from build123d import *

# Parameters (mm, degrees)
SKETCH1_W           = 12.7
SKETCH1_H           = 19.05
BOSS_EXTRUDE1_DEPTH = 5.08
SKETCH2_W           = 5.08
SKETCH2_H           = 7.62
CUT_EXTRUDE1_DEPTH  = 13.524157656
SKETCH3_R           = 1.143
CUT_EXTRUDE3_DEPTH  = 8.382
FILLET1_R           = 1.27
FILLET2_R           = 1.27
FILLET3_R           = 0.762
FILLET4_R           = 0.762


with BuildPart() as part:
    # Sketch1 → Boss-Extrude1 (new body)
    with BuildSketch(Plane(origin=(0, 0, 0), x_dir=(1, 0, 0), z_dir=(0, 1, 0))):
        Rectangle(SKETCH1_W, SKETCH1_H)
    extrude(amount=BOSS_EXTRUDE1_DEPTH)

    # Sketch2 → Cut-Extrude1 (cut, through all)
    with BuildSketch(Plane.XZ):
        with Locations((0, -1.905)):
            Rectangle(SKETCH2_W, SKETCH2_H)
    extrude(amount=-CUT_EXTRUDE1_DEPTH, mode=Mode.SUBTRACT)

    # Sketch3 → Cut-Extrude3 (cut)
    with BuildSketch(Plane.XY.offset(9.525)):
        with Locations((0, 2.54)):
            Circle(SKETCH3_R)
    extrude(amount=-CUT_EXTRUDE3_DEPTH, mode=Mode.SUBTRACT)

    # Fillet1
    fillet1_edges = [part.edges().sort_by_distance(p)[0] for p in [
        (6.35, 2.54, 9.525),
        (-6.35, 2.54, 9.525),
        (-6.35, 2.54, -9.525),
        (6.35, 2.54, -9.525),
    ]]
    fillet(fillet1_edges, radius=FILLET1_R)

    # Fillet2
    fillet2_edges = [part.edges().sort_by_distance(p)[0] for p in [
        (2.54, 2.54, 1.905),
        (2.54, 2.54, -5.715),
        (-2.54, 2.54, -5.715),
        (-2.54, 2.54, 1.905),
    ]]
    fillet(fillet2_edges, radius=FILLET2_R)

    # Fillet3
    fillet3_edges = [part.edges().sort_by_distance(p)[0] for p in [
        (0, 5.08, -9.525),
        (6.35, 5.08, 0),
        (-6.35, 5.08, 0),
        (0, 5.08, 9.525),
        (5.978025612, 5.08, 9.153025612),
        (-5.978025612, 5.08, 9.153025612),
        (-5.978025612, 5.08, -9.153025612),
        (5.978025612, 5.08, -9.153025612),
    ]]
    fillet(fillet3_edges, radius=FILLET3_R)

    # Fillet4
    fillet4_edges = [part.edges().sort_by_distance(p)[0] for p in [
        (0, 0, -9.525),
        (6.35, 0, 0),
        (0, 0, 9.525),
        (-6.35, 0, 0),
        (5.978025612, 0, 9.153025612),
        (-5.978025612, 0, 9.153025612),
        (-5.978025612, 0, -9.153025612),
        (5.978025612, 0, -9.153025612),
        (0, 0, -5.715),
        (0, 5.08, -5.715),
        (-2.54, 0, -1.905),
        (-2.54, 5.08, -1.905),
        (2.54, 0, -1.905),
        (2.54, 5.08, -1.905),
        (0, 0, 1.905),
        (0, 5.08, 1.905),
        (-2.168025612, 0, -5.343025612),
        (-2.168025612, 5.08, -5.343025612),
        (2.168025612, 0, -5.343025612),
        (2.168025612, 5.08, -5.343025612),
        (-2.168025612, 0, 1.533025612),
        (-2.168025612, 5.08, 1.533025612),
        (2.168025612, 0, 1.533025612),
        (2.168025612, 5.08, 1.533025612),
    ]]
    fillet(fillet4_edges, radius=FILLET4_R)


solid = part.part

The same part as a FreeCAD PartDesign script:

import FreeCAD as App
import Part
import Sketcher
from FreeCAD import Vector
Q = App.Units.Quantity


def edges_at(feature, points):
    """Names of the edges that pass closest to the given points."""
    edges = feature.Shape.Edges
    near = lambda p: min(range(len(edges)), key=lambda i: edges[i].distToShape(Part.Vertex(*p))[0])
    return sorted({f"Edge{near(p) + 1}" for p in points})


def add_polygon(sketch, points):
    """Adds a closed chain of lines whose ends are joined by coincident constraints."""
    first, n = sketch.GeometryCount, len(points)
    for a, b in zip(points, points[1:] + points[:1]):
        sketch.addGeometry(Part.LineSegment(App.Vector(*a, 0), App.Vector(*b, 0)), False)
    for i in range(n):
        sketch.addConstraint(Sketcher.Constraint("Coincident", first + i, 2, first + (i + 1) % n, 1))

doc = App.newDocument("Part")
body = doc.addObject("PartDesign::Body", "Body")

# Sketch on XZ plane
sketch1 = body.newObject("Sketcher::SketchObject", "Sketch")
sketch1.AttachmentSupport = (doc.getObject("XZ_Plane"), [""])
sketch1.MapMode = "FlatFace"
add_polygon(sketch1, [(-6.35, -9.525), (-6.35, 9.525), (6.35, 9.525), (6.35, -9.525)])  # lines 0-3
sketch1.addConstraint(Sketcher.Constraint("Vertical", 0))
sketch1.addConstraint(Sketcher.Constraint("Horizontal", 1))
sketch1.addConstraint(Sketcher.Constraint("Vertical", 2))
sketch1.addConstraint(Sketcher.Constraint("Horizontal", 3))
sketch1.addConstraint(Sketcher.Constraint("Symmetric", 0, 2, 2, 2, -1, 1))
sketch1.addConstraint(Sketcher.Constraint("DistanceX", 1, 1, 1, 2, Q("0.5 in")))
sketch1.addConstraint(Sketcher.Constraint("DistanceY", 0, 1, 0, 2, Q("0.75 in")))
pad1 = body.newObject("PartDesign::Pad", "Pad")
pad1.Profile = sketch1
pad1.Length = Q("0.2 in")
pad1.Reversed = True

# Sketch on XZ plane
sketch2 = body.newObject("Sketcher::SketchObject", "Sketch001")
sketch2.AttachmentSupport = (doc.getObject("XZ_Plane"), [""])
sketch2.MapMode = "FlatFace"
add_polygon(sketch2, [(-2.54, 1.905), (-2.54, -5.715), (2.54, -5.715), (2.54, 1.905)])  # lines 0-3
sketch2.addConstraint(Sketcher.Constraint("Vertical", 0))
sketch2.addConstraint(Sketcher.Constraint("Horizontal", 1))
sketch2.addConstraint(Sketcher.Constraint("Vertical", 2))
sketch2.addConstraint(Sketcher.Constraint("Horizontal", 3))
sketch2.addConstraint(Sketcher.Constraint("DistanceX", 1, 1, 1, 2, Q("0.2 in")))
sketch2.addConstraint(Sketcher.Constraint("DistanceY", 0, 2, 0, 1, Q("0.3 in")))
sketch2.addConstraint(Sketcher.Constraint("DistanceX", 0, 2, -1, 1, Q("0.1 in")))
sketch2.addConstraint(Sketcher.Constraint("DistanceY", 0, 2, -1, 1, Q("0.225 in")))
pocket1 = body.newObject("PartDesign::Pocket", "Pocket")
pocket1.Profile = sketch2
pocket1.Type = "ThroughAll"

# Sketch on XY plane
sketch3 = body.newObject("Sketcher::SketchObject", "Sketch002")
sketch3.AttachmentSupport = (doc.getObject("XY_Plane"), [""])
sketch3.MapMode = "FlatFace"
sketch3.AttachmentOffset = App.Placement(Vector(0, 0, 0.375 * 25.4), App.Rotation())
sketch3.addGeometry(Part.Circle(Vector(0, 2.54, 0), Vector(0, 0, 1), 1.143), False)
sketch3.addConstraint(Sketcher.Constraint("PointOnObject", 0, 3, -2))
sketch3.addConstraint(Sketcher.Constraint("Diameter", 0, Q("0.09 in")))
sketch3.addConstraint(Sketcher.Constraint("DistanceY", -1, 1, 0, 3, Q("0.1 in")))
pocket2 = body.newObject("PartDesign::Pocket", "Pocket001")
pocket2.Profile = sketch3
pocket2.Length = Q("0.33 in")
doc.recompute()

fillet = body.newObject("PartDesign::Fillet", "Fillet")
fillet.Base = (pocket2, edges_at(pocket2, [
    (6.35, 2.54, 9.525),
    (-6.35, 2.54, 9.525),
    (-6.35, 2.54, -9.525),
    (6.35, 2.54, -9.525),
]))
fillet.Radius = Q("0.05 in")
doc.recompute()

fillet2 = body.newObject("PartDesign::Fillet", "Fillet001")
fillet2.Base = (fillet, edges_at(fillet, [
    (2.54, 2.54, 1.905),
    (2.54, 2.54, -5.715),
    (-2.54, 2.54, -5.715),
    (-2.54, 2.54, 1.905),
]))
fillet2.Radius = Q("0.05 in")
doc.recompute()

fillet3 = body.newObject("PartDesign::Fillet", "Fillet002")
fillet3.Base = (fillet2, edges_at(fillet2, [
    (0, 5.08, -9.525),
    (6.35, 5.08, 0),
    (-6.35, 5.08, 0),
    (0, 5.08, 9.525),
    (5.978, 5.08, 9.153),
    (-5.978, 5.08, 9.153),
    (-5.978, 5.08, -9.153),
    (5.978, 5.08, -9.153),
]))
fillet3.Radius = Q("0.03 in")
doc.recompute()

fillet4 = body.newObject("PartDesign::Fillet", "Fillet003")
fillet4.Base = (fillet3, edges_at(fillet3, [
    (0, 0, -9.525),
    (6.35, 0, 0),
    (0, 0, 9.525),
    (-6.35, 0, 0),
    (5.978, 0, 9.153),
    (-5.978, 0, 9.153),
    (-5.978, 0, -9.153),
    (5.978, 0, -9.153),
    (0, 0, -5.715),
    (0, 5.08, -5.715),
    (-2.54, 0, -1.905),
    (-2.54, 5.08, -1.905),
    (2.54, 0, -1.905),
    (2.54, 5.08, -1.905),
    (0, 0, 1.905),
    (0, 5.08, 1.905),
    (-2.168, 0, -5.343),
    (-2.168, 5.08, -5.343),
    (2.168, 0, -5.343),
    (2.168, 5.08, -5.343),
    (-2.168, 0, 1.533),
    (-2.168, 5.08, 1.533),
    (2.168, 0, 1.533),
    (2.168, 5.08, 1.533),
]))
fillet4.Radius = Q("0.03 in")

doc.recompute()
